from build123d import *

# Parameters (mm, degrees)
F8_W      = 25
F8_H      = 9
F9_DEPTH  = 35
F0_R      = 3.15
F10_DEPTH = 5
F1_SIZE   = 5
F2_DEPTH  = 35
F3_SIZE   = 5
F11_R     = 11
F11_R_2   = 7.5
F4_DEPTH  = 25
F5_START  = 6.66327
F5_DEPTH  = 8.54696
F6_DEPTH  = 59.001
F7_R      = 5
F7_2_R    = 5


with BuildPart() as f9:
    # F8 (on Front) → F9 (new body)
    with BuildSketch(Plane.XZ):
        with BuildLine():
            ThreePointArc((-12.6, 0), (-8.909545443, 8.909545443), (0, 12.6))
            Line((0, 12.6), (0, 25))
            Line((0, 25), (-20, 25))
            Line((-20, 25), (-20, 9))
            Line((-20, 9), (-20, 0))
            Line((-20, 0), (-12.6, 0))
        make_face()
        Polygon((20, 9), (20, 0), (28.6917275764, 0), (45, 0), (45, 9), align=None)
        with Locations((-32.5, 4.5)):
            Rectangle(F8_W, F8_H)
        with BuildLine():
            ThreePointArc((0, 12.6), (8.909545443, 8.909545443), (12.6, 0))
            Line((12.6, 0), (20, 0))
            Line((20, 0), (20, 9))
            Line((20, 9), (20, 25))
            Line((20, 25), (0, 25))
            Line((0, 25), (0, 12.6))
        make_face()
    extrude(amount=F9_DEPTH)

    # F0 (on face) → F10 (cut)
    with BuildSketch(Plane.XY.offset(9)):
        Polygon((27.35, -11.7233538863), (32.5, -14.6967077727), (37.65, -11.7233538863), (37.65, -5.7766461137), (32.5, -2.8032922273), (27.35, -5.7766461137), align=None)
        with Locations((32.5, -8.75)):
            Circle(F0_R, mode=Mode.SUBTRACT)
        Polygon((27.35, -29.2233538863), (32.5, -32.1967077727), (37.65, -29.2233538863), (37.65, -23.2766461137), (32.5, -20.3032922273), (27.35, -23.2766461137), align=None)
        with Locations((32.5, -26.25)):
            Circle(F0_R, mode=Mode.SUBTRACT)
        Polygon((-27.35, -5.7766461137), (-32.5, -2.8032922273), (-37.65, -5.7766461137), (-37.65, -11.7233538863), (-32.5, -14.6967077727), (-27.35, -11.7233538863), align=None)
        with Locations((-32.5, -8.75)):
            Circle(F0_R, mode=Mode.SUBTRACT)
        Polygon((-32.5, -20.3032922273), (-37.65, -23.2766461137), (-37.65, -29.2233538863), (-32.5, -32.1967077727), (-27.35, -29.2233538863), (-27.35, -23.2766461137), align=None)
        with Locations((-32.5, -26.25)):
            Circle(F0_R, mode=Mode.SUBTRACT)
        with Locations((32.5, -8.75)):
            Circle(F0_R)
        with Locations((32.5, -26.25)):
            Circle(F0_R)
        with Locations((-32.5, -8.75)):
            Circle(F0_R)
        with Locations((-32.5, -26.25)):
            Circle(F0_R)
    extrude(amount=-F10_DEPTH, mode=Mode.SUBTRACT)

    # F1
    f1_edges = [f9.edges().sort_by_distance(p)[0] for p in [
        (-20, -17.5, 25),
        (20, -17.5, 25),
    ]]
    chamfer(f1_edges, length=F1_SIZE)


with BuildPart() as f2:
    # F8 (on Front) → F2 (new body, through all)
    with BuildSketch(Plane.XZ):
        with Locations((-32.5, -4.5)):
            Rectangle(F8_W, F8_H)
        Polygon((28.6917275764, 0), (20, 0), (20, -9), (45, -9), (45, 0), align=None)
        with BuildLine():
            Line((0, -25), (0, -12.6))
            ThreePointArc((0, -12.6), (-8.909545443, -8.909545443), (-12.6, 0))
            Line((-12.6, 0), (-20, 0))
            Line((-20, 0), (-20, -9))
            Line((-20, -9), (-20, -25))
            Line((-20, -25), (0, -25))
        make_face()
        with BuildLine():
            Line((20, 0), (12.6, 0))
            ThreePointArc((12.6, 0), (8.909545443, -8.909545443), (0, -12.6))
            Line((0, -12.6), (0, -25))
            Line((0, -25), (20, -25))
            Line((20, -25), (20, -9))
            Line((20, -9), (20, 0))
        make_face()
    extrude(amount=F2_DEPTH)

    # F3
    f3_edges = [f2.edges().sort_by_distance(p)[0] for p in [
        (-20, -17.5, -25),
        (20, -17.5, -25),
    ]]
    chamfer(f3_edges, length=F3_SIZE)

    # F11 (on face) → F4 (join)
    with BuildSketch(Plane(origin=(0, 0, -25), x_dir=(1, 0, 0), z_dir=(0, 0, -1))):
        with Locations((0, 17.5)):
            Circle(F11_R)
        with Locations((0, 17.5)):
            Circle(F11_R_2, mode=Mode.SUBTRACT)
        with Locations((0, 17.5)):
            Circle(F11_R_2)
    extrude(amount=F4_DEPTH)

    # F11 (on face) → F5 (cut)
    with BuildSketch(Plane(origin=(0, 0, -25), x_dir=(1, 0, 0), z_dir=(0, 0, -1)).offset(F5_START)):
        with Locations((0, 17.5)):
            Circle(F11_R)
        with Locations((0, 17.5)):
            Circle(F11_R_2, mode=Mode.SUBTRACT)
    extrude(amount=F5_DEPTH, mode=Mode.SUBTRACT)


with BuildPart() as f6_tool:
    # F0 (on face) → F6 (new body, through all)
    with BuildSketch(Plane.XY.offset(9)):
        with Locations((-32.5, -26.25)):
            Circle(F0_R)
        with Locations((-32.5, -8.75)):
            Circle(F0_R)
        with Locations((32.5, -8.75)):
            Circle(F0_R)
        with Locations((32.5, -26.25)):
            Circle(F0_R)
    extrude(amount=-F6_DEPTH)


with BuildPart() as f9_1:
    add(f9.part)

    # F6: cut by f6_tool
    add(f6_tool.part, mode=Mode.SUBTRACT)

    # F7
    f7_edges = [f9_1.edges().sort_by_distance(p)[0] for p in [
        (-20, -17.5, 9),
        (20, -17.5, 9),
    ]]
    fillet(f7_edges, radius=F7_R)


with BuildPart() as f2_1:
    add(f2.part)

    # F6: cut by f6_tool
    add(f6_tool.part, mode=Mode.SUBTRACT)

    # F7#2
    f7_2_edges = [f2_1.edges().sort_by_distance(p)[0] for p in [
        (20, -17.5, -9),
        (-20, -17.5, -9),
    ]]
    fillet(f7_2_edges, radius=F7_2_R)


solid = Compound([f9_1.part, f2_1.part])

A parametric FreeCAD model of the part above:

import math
import FreeCAD as App
import Part
import Sketcher

V = App.Vector
Q = App.Units.Quantity


def edges_at(feature, points):
    """Names of the edges that pass closest to the given points."""
    edges = feature.Shape.Edges
    near = lambda p: min(range(len(edges)), key=lambda i: edges[i].distToShape(Part.Vertex(*p))[0])
    return sorted({f"Edge{near(p) + 1}" for p in points})


def add_polygon(sketch, points):
    """Adds a closed chain of lines whose ends are joined by coincident constraints."""
    first, n = sketch.GeometryCount, len(points)
    for a, b in zip(points, points[1:] + points[:1]):
        sketch.addGeometry(Part.LineSegment(App.Vector(*a, 0), App.Vector(*b, 0)), False)
    for i in range(n):
        sketch.addConstraint(Sketcher.Constraint("Coincident", first + i, 2, first + (i + 1) % n, 1))

doc = App.newDocument("Part")
body = doc.addObject("PartDesign::Body", "Body")

sketch1 = doc.addObject("Sketcher::SketchObject", "Sketch")
body.addObject(sketch1)
sketch1.AttachmentSupport = (doc.XZ_Plane, [""])
sketch1.MapMode = "FlatFace"
sketch1.addGeometry(Part.ArcOfCircle(Part.Circle(V(0, 0, 0), V(0, 0, 1), 13), math.radians(90), math.radians(180)), False)
sketch1.addGeometry(Part.ArcOfCircle(Part.Circle(V(0, 0, 0), V(0, 0, 1), 13), math.radians(0), math.radians(90)), False)
sketch1.addGeometry(Part.LineSegment(V(13, 0, 0), V(45, 0, 0)), False)
sketch1.addGeometry(Part.LineSegment(V(45, 0, 0), V(45, 9, 0)), False)
sketch1.addGeometry(Part.LineSegment(V(45, 9, 0), V(20, 9, 0)), False)
sketch1.addGeometry(Part.LineSegment(V(20, 9, 0), V(20, 25, 0)), False)
sketch1.addGeometry(Part.LineSegment(V(20, 25, 0), V(-20, 25, 0)), False)
sketch1.addGeometry(Part.LineSegment(V(-20, 25, 0), V(-20, 9, 0)), False)
sketch1.addGeometry(Part.LineSegment(V(-20, 9, 0), V(-45, 9, 0)), False)
sketch1.addGeometry(Part.LineSegment(V(-45, 9, 0), V(-45, 0, 0)), False)
sketch1.addGeometry(Part.LineSegment(V(-45, 0, 0), V(-13, 0, 0)), False)
sketch1.addConstraint(Sketcher.Constraint("Tangent", 0, 1, 1, 2))
sketch1.addConstraint(Sketcher.Constraint("Coincident", 1, 1, 2, 1))
sketch1.addConstraint(Sketcher.Constraint("Coincident", 2, 2, 3, 1))
sketch1.addConstraint(Sketcher.Constraint("Coincident", 3, 2, 4, 1))
sketch1.addConstraint(Sketcher.Constraint("Coincident", 4, 2, 5, 1))
sketch1.addConstraint(Sketcher.Constraint("Coincident", 5, 2, 6, 1))
sketch1.addConstraint(Sketcher.Constraint("Coincident", 6, 2, 7, 1))
sketch1.addConstraint(Sketcher.Constraint("Coincident", 7, 2, 8, 1))
sketch1.addConstraint(Sketcher.Constraint("Coincident", 8, 2, 9, 1))
sketch1.addConstraint(Sketcher.Constraint("Coincident", 9, 2, 10, 1))
sketch1.addConstraint(Sketcher.Constraint("Coincident", 10, 2, 0, 2))
sketch1.addConstraint(Sketcher.Constraint("Horizontal", 2))
sketch1.addConstraint(Sketcher.Constraint("Vertical", 3))
sketch1.addConstraint(Sketcher.Constraint("Horizontal", 4))
sketch1.addConstraint(Sketcher.Constraint("Vertical", 5))
sketch1.addConstraint(Sketcher.Constraint("Horizontal", 6))
sketch1.addConstraint(Sketcher.Constraint("Vertical", 7))
sketch1.addConstraint(Sketcher.Constraint("Horizontal", 8))
sketch1.addConstraint(Sketcher.Constraint("Vertical", 9))
sketch1.addConstraint(Sketcher.Constraint("Horizontal", 10))
sketch1.addConstraint(Sketcher.Constraint("Coincident", 0, 3, -1, 1))
sketch1.addConstraint(Sketcher.Constraint("Equal", 0, 1))
sketch1.addConstraint(Sketcher.Constraint("Symmetric", 2, 2, 9, 2, -1, 1))
sketch1.addConstraint(Sketcher.Constraint("Symmetric", 4, 2, 7, 2, -2))
sketch1.addConstraint(Sketcher.Constraint("PointOnObject", 0, 1, -2))
sketch1.addConstraint(Sketcher.Constraint("PointOnObject", 1, 1, -1))
sketch1.addConstraint(Sketcher.Constraint("Radius", 0, 12.6))
sketch1.addConstraint(Sketcher.Constraint("DistanceX", 4, 2, 4, 1, 25.0))
sketch1.addConstraint(Sketcher.Constraint("DistanceX", 6, 2, 6, 1, 40.0))
sketch1.addConstraint(Sketcher.Constraint("DistanceY", 3, 1, 3, 2, 9.0))
sketch1.addConstraint(Sketcher.Constraint("DistanceY", 5, 1, 5, 2, 16.0))
pad1 = doc.addObject("PartDesign::Pad", "Pad")
body.addObject(pad1)
pad1.Profile = sketch1
pad1.Length = 35

sketch2 = doc.addObject("Sketcher::SketchObject", "Sketch001")
body.addObject(sketch2)
sketch2.AttachmentSupport = (doc.XY_Plane, [""])
sketch2.MapMode = "FlatFace"
sketch2.AttachmentOffset = App.Placement(V(0, 0, 9), App.Rotation())
add_polygon(sketch2, [(27, -12), (32, -15), (38, -12), (38, -6), (32, -3), (27, -6)])
add_polygon(sketch2, [(27, -29), (32, -32), (38, -29), (38, -23), (32, -20), (27, -23)])
add_polygon(sketch2, [(-27, -6), (-32, -3), (-38, -6), (-38, -12), (-32, -15), (-27, -12)])
add_polygon(sketch2, [(-32, -20), (-38, -23), (-38, -29), (-32, -32), (-27, -29), (-27, -23)])
sketch2.addConstraint(Sketcher.Constraint("Vertical", 2))
sketch2.addConstraint(Sketcher.Constraint("Vertical", 5))
sketch2.addConstraint(Sketcher.Constraint("Vertical", 8))
sketch2.addConstraint(Sketcher.Constraint("Vertical", 11))
sketch2.addConstraint(Sketcher.Constraint("Vertical", 14))
sketch2.addConstraint(Sketcher.Constraint("Vertical", 17))
sketch2.addConstraint(Sketcher.Constraint("Vertical", 19))
sketch2.addConstraint(Sketcher.Constraint("Vertical", 22))
sketch2.addConstraint(Sketcher.Constraint("Symmetric", 3, 2, 12, 2, -2))
sketch2.addConstraint(Sketcher.Constraint("Symmetric", 2, 2, 13, 2, -2))
sketch2.addConstraint(Sketcher.Constraint("Symmetric", 0, 2, 15, 2, -2))
sketch2.addConstraint(Sketcher.Constraint("Symmetric", 5, 2, 16, 2, -2))
sketch2.addConstraint(Sketcher.Constraint("Symmetric", 8, 2, 18, 2, -2))
sketch2.addConstraint(Sketcher.Constraint("Symmetric", 6, 2, 20, 2, -2))
sketch2.addConstraint(Sketcher.Constraint("Symmetric", 11, 2, 21, 2, -2))
sketch2.addConstraint(Sketcher.Constraint("Symmetric", 9, 2, 23, 2, -2))
sketch2.addConstraint(Sketcher.Constraint("Parallel", 0, 3))
sketch2.addConstraint(Sketcher.Constraint("Parallel", 1, 4))
sketch2.addConstraint(Sketcher.Constraint("Parallel", 3, 6))
sketch2.addConstraint(Sketcher.Constraint("Parallel", 4, 7))
sketch2.addConstraint(Sketcher.Constraint("Parallel", 6, 9))
sketch2.addConstraint(Sketcher.Constraint("Parallel", 7, 10))
sketch2.addConstraint(Sketcher.Constraint("Parallel", 9, 12))
sketch2.addConstraint(Sketcher.Constraint("Parallel", 10, 13))
sketch2.addConstraint(Sketcher.Constraint("Parallel", 12, 15))
sketch2.addConstraint(Sketcher.Constraint("Parallel", 15, 20))
sketch2.addConstraint(Sketcher.Constraint("Parallel", 20, 23))
sketch2.addConstraint(Sketcher.Constraint("Horizontal", 2, 2, 4, 2))
sketch2.addConstraint(Sketcher.Constraint("Horizontal", 1, 2, 5, 2))
sketch2.addConstraint(Sketcher.Constraint("Horizontal", 8, 2, 10, 2))
sketch2.addConstraint(Sketcher.Constraint("Horizontal", 7, 2, 11, 2))
sketch2.addConstraint(Sketcher.Constraint("Vertical", 3, 2, 6, 2))
sketch2.addConstraint(Sketcher.Constraint("Vertical", 2, 2, 7, 2))
sketch2.addConstraint(Sketcher.Constraint("Equal", 5, 8))
sketch2.addConstraint(Sketcher.Constraint("Angle", 0, Q("-30 deg")))
sketch2.addConstraint(Sketcher.Constraint("DistanceX", 12, 2, 3, 2, 65.0))
sketch2.addConstraint(Sketcher.Constraint("DistanceX", 4, 2, 2, 2, 10.3))
sketch2.addConstraint(Sketcher.Constraint("DistanceY", 6, 2, 0, 2, 17.5))
sketch2.addConstraint(Sketcher.Constraint("DistanceY", 2, 1, 2, 2, 5.946708))
sketch2.addConstraint(Sketcher.Constraint("DistanceY", 0, 2, -1, 1, 14.696708))
pocket1 = doc.addObject("PartDesign::Pocket", "Pocket")
body.addObject(pocket1)
pocket1.Profile = sketch2
pocket1.Length = 5
doc.recompute()

chamfer = doc.addObject("PartDesign::Chamfer", "Chamfer")
body.addObject(chamfer)
chamfer.Base = (pocket1, edges_at(pocket1, [(-20, -17.5, 25), (20, -17.5, 25)]))
chamfer.Size = 5
body2 = doc.addObject("PartDesign::Body", "Body001")

sketch3 = doc.addObject("Sketcher::SketchObject", "Sketch002")
body2.addObject(sketch3)
sketch3.AttachmentSupport = (doc.getObject("XZ_Plane001"), [""])
sketch3.MapMode = "FlatFace"
sketch3.addGeometry(Part.LineSegment(V(-45, 0, 0), V(-45, -9, 0)), False)
sketch3.addGeometry(Part.LineSegment(V(-45, -9, 0), V(-20, -9, 0)), False)
sketch3.addGeometry(Part.LineSegment(V(-20, -9, 0), V(-20, -25, 0)), False)
sketch3.addGeometry(Part.LineSegment(V(-20, -25, 0), V(20, -25, 0)), False)
sketch3.addGeometry(Part.LineSegment(V(20, -25, 0), V(20, -9, 0)), False)
sketch3.addGeometry(Part.LineSegment(V(20, -9, 0), V(45, -9, 0)), False)
sketch3.addGeometry(Part.LineSegment(V(45, -9, 0), V(45, 0, 0)), False)
sketch3.addGeometry(Part.LineSegment(V(45, 0, 0), V(13, 0, 0)), False)
sketch3.addGeometry(Part.ArcOfCircle(Part.Circle(V(0, 0, 0), V(0, 0, 1), 13), math.radians(-90), math.radians(0)), False)
sketch3.addGeometry(Part.ArcOfCircle(Part.Circle(V(0, 0, 0), V(0, 0, 1), 13), math.radians(180), math.radians(270)), False)
sketch3.addGeometry(Part.LineSegment(V(-13, 0, 0), V(-45, 0, 0)), False)
sketch3.addConstraint(Sketcher.Constraint("Coincident", 0, 2, 1, 1))
sketch3.addConstraint(Sketcher.Constraint("Coincident", 1, 2, 2, 1))
sketch3.addConstraint(Sketcher.Constraint("Coincident", 2, 2, 3, 1))
sketch3.addConstraint(Sketcher.Constraint("Coincident", 3, 2, 4, 1))
sketch3.addConstraint(Sketcher.Constraint("Coincident", 4, 2, 5, 1))
sketch3.addConstraint(Sketcher.Constraint("Coincident", 5, 2, 6, 1))
sketch3.addConstraint(Sketcher.Constraint("Coincident", 6, 2, 7, 1))
sketch3.addConstraint(Sketcher.Constraint("Coincident", 7, 2, 8, 2))
sketch3.addConstraint(Sketcher.Constraint("Tangent", 8, 1, 9, 2))
sketch3.addConstraint(Sketcher.Constraint("Coincident", 9, 1, 10, 1))
sketch3.addConstraint(Sketcher.Constraint("Coincident", 10, 2, 0, 1))
sketch3.addConstraint(Sketcher.Constraint("Vertical", 0))
sketch3.addConstraint(Sketcher.Constraint("Horizontal", 1))
sketch3.addConstraint(Sketcher.Constraint("Vertical", 2))
sketch3.addConstraint(Sketcher.Constraint("Horizontal", 3))
sketch3.addConstraint(Sketcher.Constraint("Vertical", 4))
sketch3.addConstraint(Sketcher.Constraint("Horizontal", 5))
sketch3.addConstraint(Sketcher.Constraint("Vertical", 6))
sketch3.addConstraint(Sketcher.Constraint("Horizontal", 7))
sketch3.addConstraint(Sketcher.Constraint("Horizontal", 10))
sketch3.addConstraint(Sketcher.Constraint("Coincident", 8, 3, -1, 1))
sketch3.addConstraint(Sketcher.Constraint("Equal", 8, 9))
sketch3.addConstraint(Sketcher.Constraint("Symmetric", 6, 2, 10, 2, -1, 1))
sketch3.addConstraint(Sketcher.Constraint("Symmetric", 1, 2, 4, 2, -2))
sketch3.addConstraint(Sketcher.Constraint("PointOnObject", 6, 2, -1))
sketch3.addConstraint(Sketcher.Constraint("PointOnObject", 8, 1, -2))
sketch3.addConstraint(Sketcher.Constraint("Radius", 8, 12.6))
sketch3.addConstraint(Sketcher.Constraint("DistanceX", 1, 1, 1, 2, 25.0))
sketch3.addConstraint(Sketcher.Constraint("DistanceX", 3, 1, 3, 2, 40.0))
sketch3.addConstraint(Sketcher.Constraint("DistanceY", 0, 2, 0, 1, 9.0))
sketch3.addConstraint(Sketcher.Constraint("DistanceY", 2, 2, 2, 1, 16.0))
pad2 = doc.addObject("PartDesign::Pad", "Pad001")
body2.addObject(pad2)
pad2.Profile = sketch3
pad2.Length = 35
doc.recompute()

chamfer2 = doc.addObject("PartDesign::Chamfer", "Chamfer001")
body2.addObject(chamfer2)
chamfer2.Base = (pad2, edges_at(pad2, [(-20, -17.5, -25), (20, -17.5, -25)]))
chamfer2.Size = 5

sketch4 = doc.addObject("Sketcher::SketchObject", "Sketch003")
body2.addObject(sketch4)
sketch4.AttachmentSupport = (doc.getObject("XY_Plane001"), [""])
sketch4.MapMode = "FlatFace"
sketch4.AttachmentOffset = App.Placement(V(0, 0, -25), App.Rotation())
sketch4.addGeometry(Part.Circle(V(0, -18, 0), V(0, 0, 1), 11), False)
sketch4.addConstraint(Sketcher.Constraint("PointOnObject", 0, 3, -2))
sketch4.addConstraint(Sketcher.Constraint("Diameter", 0, 22.0))
sketch4.addConstraint(Sketcher.Constraint("DistanceY", 0, 3, -1, 1, 17.5))
pad3 = doc.addObject("PartDesign::Pad", "Pad002")
body2.addObject(pad3)
pad3.Profile = sketch4
pad3.Length = 25
pad3.Reversed = True

sketch5 = doc.addObject("Sketcher::SketchObject", "Sketch004")
body2.addObject(sketch5)
sketch5.AttachmentSupport = (doc.getObject("XY_Plane001"), [""])
sketch5.MapMode = "FlatFace"
sketch5.AttachmentOffset = App.Placement(V(0, 0, -31.66327), App.Rotation())
sketch5.addGeometry(Part.Circle(V(0, -18, 0), V(0, 0, 1), 11), False)
sketch5.addGeometry(Part.Circle(V(0, -18, 0), V(0, 0, 1), 8), False)
sketch5.addConstraint(Sketcher.Constraint("Coincident", 1, 3, 0, 3))
sketch5.addConstraint(Sketcher.Constraint("PointOnObject", 0, 3, -2))
sketch5.addConstraint(Sketcher.Constraint("Diameter", 0, 22.0))
sketch5.addConstraint(Sketcher.Constraint("Diameter", 1, 15.0))
sketch5.addConstraint(Sketcher.Constraint("DistanceY", 0, 3, -1, 1, 17.5))
pocket2 = doc.addObject("PartDesign::Pocket", "Pocket001")
body2.addObject(pocket2)
pocket2.Profile = sketch5
pocket2.Length = 8.54696
body3 = doc.addObject("PartDesign::Body", "Body002")
body3.AllowCompound = True

sketch6 = doc.addObject("Sketcher::SketchObject", "Sketch005")
body3.addObject(sketch6)
sketch6.AttachmentSupport = (doc.getObject("XY_Plane002"), [""])
sketch6.MapMode = "FlatFace"
sketch6.AttachmentOffset = App.Placement(V(0, 0, 9), App.Rotation())
sketch6.addGeometry(Part.Circle(V(-32.5, -26.2, 0), V(0, 0, 1), 3.1), False)
sketch6.addGeometry(Part.Circle(V(-32.5, -8.8, 0), V(0, 0, 1), 3.1), False)
sketch6.addGeometry(Part.Circle(V(32.5, -8.8, 0), V(0, 0, 1), 3.1), False)
sketch6.addGeometry(Part.Circle(V(32.5, -26.2, 0), V(0, 0, 1), 3.1), False)
sketch6.addConstraint(Sketcher.Constraint("Equal", 0, 1))
sketch6.addConstraint(Sketcher.Constraint("Equal", 1, 2))
sketch6.addConstraint(Sketcher.Constraint("Equal", 2, 3))
sketch6.addConstraint(Sketcher.Constraint("Symmetric", 1, 3, 2, 3, -2))
sketch6.addConstraint(Sketcher.Constraint("Symmetric", 0, 3, 3, 3, -2))
sketch6.addConstraint(Sketcher.Constraint("Vertical", 0, 3, 1, 3))
sketch6.addConstraint(Sketcher.Constraint("Diameter", 0, 6.3))
sketch6.addConstraint(Sketcher.Constraint("DistanceX", 1, 3, 2, 3, 65.0))
sketch6.addConstraint(Sketcher.Constraint("DistanceY", 0, 3, 1, 3, 17.5))
sketch6.addConstraint(Sketcher.Constraint("DistanceY", 0, 3, -1, 1, 26.25))
pad4 = doc.addObject("PartDesign::Pad", "Pad003")
body3.addObject(pad4)
pad4.Profile = sketch6
pad4.Length = 59.001
pad4.Reversed = True
doc.recompute()

body4 = doc.addObject("PartDesign::Body", "Body003")
body4.BaseFeature = body3
boolean = doc.addObject("PartDesign::Boolean", "Boolean")
body.addObject(boolean)
boolean.Type = "Cut"
boolean.addObjects([body4])
doc.recompute()

fillet = doc.addObject("PartDesign::Fillet", "Fillet")
body.addObject(fillet)
fillet.Base = (boolean, edges_at(boolean, [(-20, -17.5, 9), (20, -17.5, 9)]))
fillet.Radius = 5
doc.recompute()

boolean2 = doc.addObject("PartDesign::Boolean", "Boolean001")
body2.addObject(boolean2)
boolean2.Type = "Cut"
boolean2.addObjects([body3])
doc.recompute()

fillet2 = doc.addObject("PartDesign::Fillet", "Fillet001")
body2.addObject(fillet2)
fillet2.Base = (boolean2, edges_at(boolean2, [(20, -17.5, -9), (-20, -17.5, -9)]))
fillet2.Radius = 5

doc.recompute()
